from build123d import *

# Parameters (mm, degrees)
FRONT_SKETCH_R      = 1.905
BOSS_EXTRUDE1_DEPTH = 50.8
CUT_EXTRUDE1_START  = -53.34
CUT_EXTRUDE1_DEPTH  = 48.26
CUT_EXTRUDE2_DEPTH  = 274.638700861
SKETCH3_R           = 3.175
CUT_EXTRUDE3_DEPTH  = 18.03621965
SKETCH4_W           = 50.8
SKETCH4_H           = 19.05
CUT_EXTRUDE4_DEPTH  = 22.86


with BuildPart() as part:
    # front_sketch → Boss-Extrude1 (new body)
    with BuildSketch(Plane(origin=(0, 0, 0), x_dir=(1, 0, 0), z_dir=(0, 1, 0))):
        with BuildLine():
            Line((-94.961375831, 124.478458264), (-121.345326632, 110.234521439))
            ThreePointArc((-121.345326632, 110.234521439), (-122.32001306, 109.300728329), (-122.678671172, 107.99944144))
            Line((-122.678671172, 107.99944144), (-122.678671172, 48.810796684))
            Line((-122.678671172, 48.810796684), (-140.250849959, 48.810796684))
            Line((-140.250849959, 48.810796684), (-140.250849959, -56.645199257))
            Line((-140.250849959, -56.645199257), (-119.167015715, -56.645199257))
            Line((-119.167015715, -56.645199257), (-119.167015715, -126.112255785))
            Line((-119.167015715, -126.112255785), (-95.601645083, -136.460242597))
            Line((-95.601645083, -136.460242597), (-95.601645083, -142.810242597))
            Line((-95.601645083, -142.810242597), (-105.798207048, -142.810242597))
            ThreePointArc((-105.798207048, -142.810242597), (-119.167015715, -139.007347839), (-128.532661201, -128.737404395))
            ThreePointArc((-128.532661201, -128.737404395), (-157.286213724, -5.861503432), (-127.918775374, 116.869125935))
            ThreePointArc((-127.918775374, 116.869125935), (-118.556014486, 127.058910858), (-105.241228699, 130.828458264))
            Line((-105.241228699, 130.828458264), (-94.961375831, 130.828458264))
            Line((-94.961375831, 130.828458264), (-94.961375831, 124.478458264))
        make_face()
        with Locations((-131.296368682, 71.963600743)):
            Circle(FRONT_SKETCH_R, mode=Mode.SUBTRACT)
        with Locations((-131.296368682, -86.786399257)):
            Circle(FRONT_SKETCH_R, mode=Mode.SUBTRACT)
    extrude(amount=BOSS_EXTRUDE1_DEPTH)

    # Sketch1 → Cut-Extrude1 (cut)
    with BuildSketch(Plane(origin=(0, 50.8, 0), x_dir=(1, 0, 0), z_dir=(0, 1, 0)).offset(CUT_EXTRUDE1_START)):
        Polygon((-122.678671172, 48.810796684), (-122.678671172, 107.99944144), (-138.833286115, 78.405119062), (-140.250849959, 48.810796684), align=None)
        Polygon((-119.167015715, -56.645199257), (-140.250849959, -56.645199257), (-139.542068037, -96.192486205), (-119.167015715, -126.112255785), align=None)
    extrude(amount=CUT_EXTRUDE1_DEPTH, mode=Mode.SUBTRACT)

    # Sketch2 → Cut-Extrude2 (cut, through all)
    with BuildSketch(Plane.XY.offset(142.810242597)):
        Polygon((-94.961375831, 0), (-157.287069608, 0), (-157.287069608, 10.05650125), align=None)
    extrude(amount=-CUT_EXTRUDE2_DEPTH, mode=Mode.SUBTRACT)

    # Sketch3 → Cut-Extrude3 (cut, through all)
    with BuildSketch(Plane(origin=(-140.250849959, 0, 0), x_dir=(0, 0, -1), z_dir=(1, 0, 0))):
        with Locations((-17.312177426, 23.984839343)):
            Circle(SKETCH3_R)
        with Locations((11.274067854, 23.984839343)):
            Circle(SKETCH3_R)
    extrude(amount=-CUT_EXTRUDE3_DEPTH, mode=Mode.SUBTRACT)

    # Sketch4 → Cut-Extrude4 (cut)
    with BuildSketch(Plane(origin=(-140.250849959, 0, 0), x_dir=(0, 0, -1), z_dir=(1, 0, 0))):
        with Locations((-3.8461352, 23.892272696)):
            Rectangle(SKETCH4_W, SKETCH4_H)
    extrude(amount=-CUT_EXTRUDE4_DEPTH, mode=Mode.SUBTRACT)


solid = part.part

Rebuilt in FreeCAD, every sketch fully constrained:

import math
import FreeCAD as App
import Part
import Sketcher

V = App.Vector
Q = App.Units.Quantity

doc = App.newDocument("Part")
body = doc.addObject("PartDesign::Body", "Body")

sketch1 = body.newObject("Sketcher::SketchObject", "Sketch")
sketch1.AttachmentSupport = (doc.getObject("XZ_Plane"), [""])
sketch1.MapMode = "FlatFace"
sketch1.addGeometry([
    Part.LineSegment(V(-121.3, -110.2, 0), V(-95, -124.5, 0)),
    Part.LineSegment(V(-95, -124.5, 0), V(-95, -130.8, 0)),
    Part.LineSegment(V(-95, -130.8, 0), V(-105.2, -130.8, 0)),
    Part.ArcOfCircle(Part.Circle(V(-105.2, -105.4, 0), V(0, 0, 1), 25.4), math.radians(-153), math.radians(-90)),
    Part.ArcOfCircle(Part.Circle(V(116.7, 6.5, 0), V(0, 0, 1), 274), math.radians(154), math.radians(207)),
    Part.ArcOfCircle(Part.Circle(V(-105.8, 117.4, 0), V(0, 0, 1), 25.4), math.radians(90), math.radians(154)),
    Part.LineSegment(V(-105.8, 142.8, 0), V(-95.6, 142.8, 0)),
    Part.LineSegment(V(-95.6, 142.8, 0), V(-95.6, 136.5, 0)),
    Part.LineSegment(V(-95.6, 136.5, 0), V(-119.2, 126.1, 0)),
    Part.LineSegment(V(-119.2, 126.1, 0), V(-119.2, 56.6, 0)),
    Part.LineSegment(V(-119.2, 56.6, 0), V(-140.3, 56.6, 0)),
    Part.LineSegment(V(-140.3, 56.6, 0), V(-140.3, -48.8, 0)),
    Part.LineSegment(V(-140.3, -48.8, 0), V(-122.7, -48.8, 0)),
    Part.LineSegment(V(-122.7, -48.8, 0), V(-122.7, -108, 0)),
    Part.ArcOfCircle(Part.Circle(V(-120.1, -108, 0), V(0, 0, 1), 2.5), math.radians(180), math.radians(242)),
    Part.Circle(V(-131.3, 86.8, 0), V(0, 0, 1), 1.9),
    Part.Circle(V(-131.3, -72, 0), V(0, 0, 1), 1.9),
], False)
sketch1.addConstraint([
    Sketcher.Constraint("Coincident", 0, 2, 1, 1),
    Sketcher.Constraint("Coincident", 1, 2, 2, 1),
    Sketcher.Constraint("Tangent", 2, 2, 3, 2),
    Sketcher.Constraint("Tangent", 3, 1, 4, 2),
    Sketcher.Constraint("Tangent", 4, 1, 5, 2),
    Sketcher.Constraint("Tangent", 5, 1, 6, 1),
    Sketcher.Constraint("Coincident", 6, 2, 7, 1),
    Sketcher.Constraint("Coincident", 7, 2, 8, 1),
    Sketcher.Constraint("Coincident", 8, 2, 9, 1),
    Sketcher.Constraint("Coincident", 9, 2, 10, 1),
    Sketcher.Constraint("Coincident", 10, 2, 11, 1),
    Sketcher.Constraint("Coincident", 11, 2, 12, 1),
    Sketcher.Constraint("Coincident", 12, 2, 13, 1),
    Sketcher.Constraint("Tangent", 13, 2, 14, 1),
    Sketcher.Constraint("Tangent", 14, 2, 0, 1),
    Sketcher.Constraint("Vertical", 1),
    Sketcher.Constraint("Horizontal", 2),
    Sketcher.Constraint("Horizontal", 6),
    Sketcher.Constraint("Vertical", 7),
    Sketcher.Constraint("Vertical", 9),
    Sketcher.Constraint("Horizontal", 10),
    Sketcher.Constraint("Vertical", 11),
    Sketcher.Constraint("Horizontal", 12),
    Sketcher.Constraint("Vertical", 13),
    Sketcher.Constraint("Equal", 3, 5),
    Sketcher.Constraint("Equal", 15, 16),
    Sketcher.Constraint("Vertical", 15, 3, 16, 3),
    Sketcher.Constraint("Equal", 1, 7),
    Sketcher.Constraint("Radius", 3, Q("1 in")),
    Sketcher.Constraint("Radius", 14, Q("0.1 in")),
    Sketcher.Constraint("Diameter", 15, Q("0.15 in")),
    Sketcher.Constraint("DistanceY", 1, 2, 1, 1, Q("0.25 in")),
    Sketcher.Constraint("DistanceY", 16, 3, 15, 3, Q("6.25 in")),
    Sketcher.Constraint("Radius", 4, Q("274.000905 mm")),
    Sketcher.Constraint("DistanceY", 3, 1, 14, 3, Q("0.3492002 in")),
    Sketcher.Constraint("DistanceX", 6, 1, 6, 2, Q("10.196562 mm")),
    Sketcher.Constraint("DistanceX", 12, 1, 12, 2, Q("17.572179 mm")),
    Sketcher.Constraint("DistanceY", -1, 1, 15, 3, Q("86.786399 mm")),
    Sketcher.Constraint("DistanceY", -1, 1, 9, 2, Q("56.645199 mm")),
    Sketcher.Constraint("DistanceY", 3, 3, 5, 3, Q("222.838701 mm")),
    Sketcher.Constraint("DistanceY", 14, 3, 4, 3, Q("114.545799 mm")),
    Sketcher.Constraint("DistanceX", 3, 1, 0, 2, Q("32.9574 mm")),
    Sketcher.Constraint("Distance", 0, Q("29.983372 mm")),
    Sketcher.Constraint("Distance", 8, Q("25.737279 mm")),
    Sketcher.Constraint("DistanceX", 10, 2, 10, 1, Q("21.083834 mm")),
    Sketcher.Constraint("DistanceY", 9, 2, 9, 1, Q("69.467057 mm")),
    Sketcher.Constraint("DistanceY", 11, 2, 11, 1, Q("105.455996 mm")),
    Sketcher.Constraint("DistanceX", 3, 3, -1, 1, Q("105.241229 mm")),
    Sketcher.Constraint("DistanceX", 15, 3, -1, 1, Q("131.296369 mm")),
])
pad1 = body.newObject("PartDesign::Pad", "Pad")
pad1.Profile = sketch1
pad1.Length = Q("2 in")
pad1.Reversed = True

sketch2 = body.newObject("Sketcher::SketchObject", "Sketch001")
sketch2.AttachmentSupport = (doc.getObject("XZ_Plane"), [""])
sketch2.MapMode = "FlatFace"
sketch2.AttachmentOffset = App.Placement(V(0, 0, 0.1 * 25.4), App.Rotation())
sketch2.addGeometry([
    Part.LineSegment(V(-123, -49, 0), V(-123, -108, 0)),
    Part.LineSegment(V(-123, -108, 0), V(-139, -78, 0)),
    Part.LineSegment(V(-139, -78, 0), V(-140, -49, 0)),
    Part.LineSegment(V(-140, -49, 0), V(-123, -49, 0)),
    Part.LineSegment(V(-119, 57, 0), V(-140, 57, 0)),
    Part.LineSegment(V(-140, 57, 0), V(-140, 96, 0)),
    Part.LineSegment(V(-140, 96, 0), V(-119, 126, 0)),
    Part.LineSegment(V(-119, 126, 0), V(-119, 57, 0)),
], False)
sketch2.addConstraint([
    Sketcher.Constraint("Coincident", 0, 2, 1, 1),
    Sketcher.Constraint("Coincident", 1, 2, 2, 1),
    Sketcher.Constraint("Coincident", 2, 2, 3, 1),
    Sketcher.Constraint("Coincident", 3, 2, 0, 1),
    Sketcher.Constraint("Coincident", 4, 2, 5, 1),
    Sketcher.Constraint("Coincident", 5, 2, 6, 1),
    Sketcher.Constraint("Coincident", 6, 2, 7, 1),
    Sketcher.Constraint("Coincident", 7, 2, 4, 1),
    Sketcher.Constraint("Vertical", 0),
    Sketcher.Constraint("Horizontal", 3),
    Sketcher.Constraint("Horizontal", 4),
    Sketcher.Constraint("Vertical", 7),
    Sketcher.Constraint("Vertical", 2, 2, 4, 2),
    Sketcher.Constraint("Distance", 1, Q("33.716398 mm")),
    Sketcher.Constraint("DistanceX", 3, 1, 3, 2, Q("17.572179 mm")),
    Sketcher.Constraint("DistanceY", -1, 1, 4, 2, Q("56.645199 mm")),
    Sketcher.Constraint("DistanceX", 4, 2, 4, 1, Q("21.083834 mm")),
    Sketcher.Constraint("DistanceY", 0, 2, 0, 1, Q("59.188645 mm")),
    Sketcher.Constraint("DistanceY", 7, 2, 7, 1, Q("69.467057 mm")),
    Sketcher.Constraint("DistanceX", 0, 2, -1, 1, Q("122.678671 mm")),
    Sketcher.Constraint("DistanceY", 0, 2, -1, 1, Q("107.999441 mm")),
    Sketcher.Constraint("DistanceY", 1, 2, -1, 1, Q("78.405119 mm")),
    Sketcher.Constraint("DistanceX", 5, 2, -1, 1, Q("139.542068 mm")),
    Sketcher.Constraint("DistanceY", 5, 2, 6, 2, Q("29.91977 mm")),
])
pocket1 = body.newObject("PartDesign::Pocket", "Pocket")
pocket1.Profile = sketch2
pocket1.Length = Q("1.9 in")

sketch3 = body.newObject("Sketcher::SketchObject", "Sketch002")
sketch3.AttachmentSupport = (doc.getObject("XY_Plane"), [""])
sketch3.MapMode = "FlatFace"
sketch3.AttachmentOffset = App.Placement(V(0, 0, 142.810243), App.Rotation())
sketch3.addGeometry([
    Part.LineSegment(V(-157, 0, 0), V(-95, 0, 0)),
    Part.LineSegment(V(-95, 0, 0), V(-157, 10, 0)),
    Part.LineSegment(V(-157, 10, 0), V(-157, 0, 0)),
], False)
sketch3.addConstraint([
    Sketcher.Constraint("Coincident", 0, 2, 1, 1),
    Sketcher.Constraint("Coincident", 1, 2, 2, 1),
    Sketcher.Constraint("Coincident", 2, 2, 0, 1),
    Sketcher.Constraint("Horizontal", 0),
    Sketcher.Constraint("Vertical", 2),
    Sketcher.Constraint("PointOnObject", 0, 2, -1),
    Sketcher.Constraint("DistanceY", 2, 2, 2, 1, Q("10.056501 mm")),
    Sketcher.Constraint("Distance", 1, Q("63.131809 mm")),
    Sketcher.Constraint("DistanceX", 1, 2, -1, 1, Q("157.28707 mm")),
])
pocket2 = body.newObject("PartDesign::Pocket", "Pocket001")
pocket2.Profile = sketch3
pocket2.Type = "ThroughAll"

sketch4 = body.newObject("Sketcher::SketchObject", "Sketch003")
sketch4.AttachmentSupport = (doc.getObject("YZ_Plane"), [""])
sketch4.MapMode = "FlatFace"
sketch4.AttachmentOffset = App.Placement(V(0, 0, -140.25085), App.Rotation())
sketch4.addGeometry([
    Part.Circle(V(24, 17.3, 0), V(0, 0, 1), 3.2),
    Part.Circle(V(24, -11.3, 0), V(0, 0, 1), 3.2),
], False)
sketch4.addConstraint([
    Sketcher.Constraint("Equal", 0, 1),
    Sketcher.Constraint("Vertical", 0, 3, 1, 3),
    Sketcher.Constraint("Diameter", 0, Q("0.25 in")),
    Sketcher.Constraint("DistanceX", -1, 1, 0, 3, Q("23.984839 mm")),
    Sketcher.Constraint("DistanceY", -1, 1, 0, 3, Q("17.312177 mm")),
    Sketcher.Constraint("DistanceY", 1, 3, -1, 1, Q("11.274068 mm")),
])
pocket3 = body.newObject("PartDesign::Pocket", "Pocket002")
pocket3.Profile = sketch4
pocket3.Type = "ThroughAll"

sketch5 = body.newObject("Sketcher::SketchObject", "Sketch004")
sketch5.AttachmentSupport = (doc.getObject("YZ_Plane"), [""])
sketch5.MapMode = "FlatFace"
sketch5.AttachmentOffset = App.Placement(V(0, 0, -140.25085), App.Rotation())
sketch5.addGeometry([
    Part.LineSegment(V(33, 29, 0), V(14, 29, 0)),
    Part.LineSegment(V(14, 29, 0), V(14, -22, 0)),
    Part.LineSegment(V(14, -22, 0), V(33, -22, 0)),
    Part.LineSegment(V(33, -22, 0), V(33, 29, 0)),
], False)
sketch5.addConstraint([
    Sketcher.Constraint("Coincident", 0, 2, 1, 1),
    Sketcher.Constraint("Coincident", 1, 2, 2, 1),
    Sketcher.Constraint("Coincident", 2, 2, 3, 1),
    Sketcher.Constraint("Coincident", 3, 2, 0, 1),
    Sketcher.Constraint("Horizontal", 0),
    Sketcher.Constraint("Vertical", 1),
    Sketcher.Constraint("Horizontal", 2),
    Sketcher.Constraint("Vertical", 3),
    Sketcher.Constraint("DistanceY", 1, 2, 1, 1, Q("2 in")),
    Sketcher.Constraint("DistanceX", 0, 2, 0, 1, Q("0.75 in")),
    Sketcher.Constraint("DistanceX", -1, 1, 0, 2, Q("14.367273 mm")),
    Sketcher.Constraint("DistanceY", -1, 1, 0, 2, Q("29.246135 mm")),
])
pocket4 = body.newObject("PartDesign::Pocket", "Pocket003")
pocket4.Profile = sketch5
pocket4.Length = Q("0.9 in")

doc.recompute()
